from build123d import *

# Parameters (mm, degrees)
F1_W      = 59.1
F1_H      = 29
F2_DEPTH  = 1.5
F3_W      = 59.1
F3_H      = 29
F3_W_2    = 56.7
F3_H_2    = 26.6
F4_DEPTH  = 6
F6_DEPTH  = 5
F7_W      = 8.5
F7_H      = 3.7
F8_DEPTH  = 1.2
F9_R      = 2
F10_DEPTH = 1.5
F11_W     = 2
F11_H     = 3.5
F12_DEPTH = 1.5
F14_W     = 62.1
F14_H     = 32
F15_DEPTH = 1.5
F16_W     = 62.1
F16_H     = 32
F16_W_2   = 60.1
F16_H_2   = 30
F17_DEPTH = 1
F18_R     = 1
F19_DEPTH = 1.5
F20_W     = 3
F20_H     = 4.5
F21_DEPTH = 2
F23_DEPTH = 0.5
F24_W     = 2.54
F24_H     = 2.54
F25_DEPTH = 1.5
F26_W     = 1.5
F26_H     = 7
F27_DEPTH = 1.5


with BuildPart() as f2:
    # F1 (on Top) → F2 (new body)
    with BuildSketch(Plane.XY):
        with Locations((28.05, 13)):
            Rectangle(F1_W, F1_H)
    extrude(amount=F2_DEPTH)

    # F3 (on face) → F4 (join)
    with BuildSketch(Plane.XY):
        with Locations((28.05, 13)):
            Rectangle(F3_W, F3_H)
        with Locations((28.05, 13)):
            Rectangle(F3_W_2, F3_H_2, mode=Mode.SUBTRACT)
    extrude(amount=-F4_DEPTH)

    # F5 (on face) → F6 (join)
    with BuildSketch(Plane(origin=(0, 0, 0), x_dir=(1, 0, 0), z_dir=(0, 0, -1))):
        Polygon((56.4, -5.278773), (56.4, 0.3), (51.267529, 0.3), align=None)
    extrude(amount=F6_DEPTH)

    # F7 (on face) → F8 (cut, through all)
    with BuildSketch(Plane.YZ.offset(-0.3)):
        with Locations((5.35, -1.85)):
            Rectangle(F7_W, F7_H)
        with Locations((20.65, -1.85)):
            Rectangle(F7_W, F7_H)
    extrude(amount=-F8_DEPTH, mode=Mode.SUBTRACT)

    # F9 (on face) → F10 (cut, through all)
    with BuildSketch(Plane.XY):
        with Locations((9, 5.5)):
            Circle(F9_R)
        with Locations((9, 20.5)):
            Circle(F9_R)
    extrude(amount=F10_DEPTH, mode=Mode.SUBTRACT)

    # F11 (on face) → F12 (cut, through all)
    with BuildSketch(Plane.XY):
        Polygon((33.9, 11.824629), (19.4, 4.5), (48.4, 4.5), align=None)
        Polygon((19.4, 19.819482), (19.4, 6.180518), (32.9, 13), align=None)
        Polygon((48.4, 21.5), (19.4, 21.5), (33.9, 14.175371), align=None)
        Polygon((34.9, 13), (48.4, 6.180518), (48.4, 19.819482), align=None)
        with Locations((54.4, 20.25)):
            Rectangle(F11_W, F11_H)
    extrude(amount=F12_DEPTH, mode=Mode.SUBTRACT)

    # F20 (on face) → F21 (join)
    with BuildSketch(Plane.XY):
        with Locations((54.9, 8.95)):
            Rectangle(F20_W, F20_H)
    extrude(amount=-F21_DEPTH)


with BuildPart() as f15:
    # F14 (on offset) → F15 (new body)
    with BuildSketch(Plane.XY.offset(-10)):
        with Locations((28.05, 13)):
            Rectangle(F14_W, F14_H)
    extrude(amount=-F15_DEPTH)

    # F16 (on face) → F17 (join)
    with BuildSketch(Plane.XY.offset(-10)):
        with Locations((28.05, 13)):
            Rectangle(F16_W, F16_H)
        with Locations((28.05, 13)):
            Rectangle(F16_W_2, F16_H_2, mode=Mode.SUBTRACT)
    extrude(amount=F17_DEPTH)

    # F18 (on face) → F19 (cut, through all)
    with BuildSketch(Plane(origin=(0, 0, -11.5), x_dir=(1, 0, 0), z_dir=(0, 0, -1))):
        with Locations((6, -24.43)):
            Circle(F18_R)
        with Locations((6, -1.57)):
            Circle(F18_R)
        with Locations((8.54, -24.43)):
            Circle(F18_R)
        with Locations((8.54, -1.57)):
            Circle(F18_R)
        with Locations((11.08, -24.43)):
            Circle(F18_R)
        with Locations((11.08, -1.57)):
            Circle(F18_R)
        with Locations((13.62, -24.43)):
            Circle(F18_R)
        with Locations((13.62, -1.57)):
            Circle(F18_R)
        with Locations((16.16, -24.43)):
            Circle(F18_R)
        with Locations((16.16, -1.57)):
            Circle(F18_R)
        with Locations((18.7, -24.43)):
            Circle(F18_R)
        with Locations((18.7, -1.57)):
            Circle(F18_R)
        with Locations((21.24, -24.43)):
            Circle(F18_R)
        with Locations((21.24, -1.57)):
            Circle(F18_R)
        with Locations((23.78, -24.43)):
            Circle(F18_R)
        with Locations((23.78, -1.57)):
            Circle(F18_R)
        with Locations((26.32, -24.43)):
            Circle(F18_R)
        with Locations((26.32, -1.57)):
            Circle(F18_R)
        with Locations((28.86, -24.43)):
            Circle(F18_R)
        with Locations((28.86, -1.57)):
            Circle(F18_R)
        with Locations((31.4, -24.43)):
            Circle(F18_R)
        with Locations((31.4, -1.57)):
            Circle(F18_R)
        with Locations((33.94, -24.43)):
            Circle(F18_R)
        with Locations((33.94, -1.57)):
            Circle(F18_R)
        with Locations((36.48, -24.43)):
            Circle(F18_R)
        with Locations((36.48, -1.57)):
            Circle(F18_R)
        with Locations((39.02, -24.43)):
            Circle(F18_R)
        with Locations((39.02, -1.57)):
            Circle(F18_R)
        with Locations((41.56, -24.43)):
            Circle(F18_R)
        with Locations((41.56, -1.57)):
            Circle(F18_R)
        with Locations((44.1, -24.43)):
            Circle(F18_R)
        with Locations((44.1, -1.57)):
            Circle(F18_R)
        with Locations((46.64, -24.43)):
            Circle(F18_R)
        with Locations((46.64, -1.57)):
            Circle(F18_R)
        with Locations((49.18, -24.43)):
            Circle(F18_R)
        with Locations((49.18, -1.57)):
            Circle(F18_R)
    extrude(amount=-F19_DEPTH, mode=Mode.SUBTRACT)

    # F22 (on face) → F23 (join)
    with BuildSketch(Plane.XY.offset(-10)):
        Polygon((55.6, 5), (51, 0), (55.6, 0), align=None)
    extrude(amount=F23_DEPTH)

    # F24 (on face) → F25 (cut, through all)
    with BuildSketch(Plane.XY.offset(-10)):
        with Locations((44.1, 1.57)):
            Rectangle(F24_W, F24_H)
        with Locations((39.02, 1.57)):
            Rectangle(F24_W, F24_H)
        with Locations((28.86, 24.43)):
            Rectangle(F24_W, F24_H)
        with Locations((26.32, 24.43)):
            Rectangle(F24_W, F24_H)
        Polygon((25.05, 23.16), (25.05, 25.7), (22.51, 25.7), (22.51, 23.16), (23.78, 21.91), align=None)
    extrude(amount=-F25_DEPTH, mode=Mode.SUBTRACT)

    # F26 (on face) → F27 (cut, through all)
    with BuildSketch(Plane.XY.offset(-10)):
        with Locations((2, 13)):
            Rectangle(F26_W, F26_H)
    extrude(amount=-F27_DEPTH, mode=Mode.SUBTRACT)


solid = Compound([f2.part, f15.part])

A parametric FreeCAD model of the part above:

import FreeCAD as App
import Part
import Sketcher
from FreeCAD import Vector

doc = App.newDocument("Part")
body = doc.addObject("PartDesign::Body", "Body")

# Sketch on XY plane
sketch1 = body.newObject("Sketcher::SketchObject", "Sketch")
sketch1.AttachmentSupport = (doc.getObject("XY_Plane"), [""])
sketch1.MapMode = "FlatFace"
sketch1.addGeometry(Part.LineSegment(Vector(-1.5, 27.5, 0), Vector(-1.5, -1.5, 0)), False)
sketch1.addGeometry(Part.LineSegment(Vector(-1.5, -1.5, 0), Vector(57.6, -1.5, 0)), False)
sketch1.addGeometry(Part.LineSegment(Vector(57.6, -1.5, 0), Vector(57.6, 27.5, 0)), False)
sketch1.addGeometry(Part.LineSegment(Vector(57.6, 27.5, 0), Vector(-1.5, 27.5, 0)), False)
sketch1.addConstraint(Sketcher.Constraint("Coincident", 0, 2, 1, 1))
sketch1.addConstraint(Sketcher.Constraint("Coincident", 1, 2, 2, 1))
sketch1.addConstraint(Sketcher.Constraint("Coincident", 2, 2, 3, 1))
sketch1.addConstraint(Sketcher.Constraint("Coincident", 3, 2, 0, 1))
sketch1.addConstraint(Sketcher.Constraint("Vertical", 0))
sketch1.addConstraint(Sketcher.Constraint("Horizontal", 1))
sketch1.addConstraint(Sketcher.Constraint("Vertical", 2))
sketch1.addConstraint(Sketcher.Constraint("Horizontal", 3))
sketch1.addConstraint(Sketcher.Constraint("DistanceY", 0, 2, 0, 1, 29.0))
sketch1.addConstraint(Sketcher.Constraint("DistanceX", 1, 1, 1, 2, 59.1))
sketch1.addConstraint(Sketcher.Constraint("DistanceX", 0, 2, -1, 1, 1.5))
sketch1.addConstraint(Sketcher.Constraint("DistanceY", 0, 2, -1, 1, 1.5))
pad1 = body.newObject("PartDesign::Pad", "Pad")
pad1.Profile = sketch1
pad1.Length = 1.5

# Sketch on XY plane
sketch2 = body.newObject("Sketcher::SketchObject", "Sketch001")
sketch2.AttachmentSupport = (doc.getObject("XY_Plane"), [""])
sketch2.MapMode = "FlatFace"
sketch2.addGeometry(Part.LineSegment(Vector(-1.5, 27.5, 0), Vector(-1.5, -1.5, 0)), False)
sketch2.addGeometry(Part.LineSegment(Vector(-1.5, -1.5, 0), Vector(57.6, -1.5, 0)), False)
sketch2.addGeometry(Part.LineSegment(Vector(57.6, -1.5, 0), Vector(57.6, 27.5, 0)), False)
sketch2.addGeometry(Part.LineSegment(Vector(57.6, 27.5, 0), Vector(-1.5, 27.5, 0)), False)
sketch2.addGeometry(Part.LineSegment(Vector(56.4, -0.3, 0), Vector(-0.3, -0.3, 0)), False)
sketch2.addGeometry(Part.LineSegment(Vector(-0.3, -0.3, 0), Vector(-0.3, 26.3, 0)), False)
sketch2.addGeometry(Part.LineSegment(Vector(-0.3, 26.3, 0), Vector(56.4, 26.3, 0)), False)
sketch2.addGeometry(Part.LineSegment(Vector(56.4, 26.3, 0), Vector(56.4, -0.3, 0)), False)
sketch2.addConstraint(Sketcher.Constraint("Coincident", 0, 2, 1, 1))
sketch2.addConstraint(Sketcher.Constraint("Coincident", 1, 2, 2, 1))
sketch2.addConstraint(Sketcher.Constraint("Coincident", 2, 2, 3, 1))
sketch2.addConstraint(Sketcher.Constraint("Coincident", 3, 2, 0, 1))
sketch2.addConstraint(Sketcher.Constraint("Coincident", 4, 2, 5, 1))
sketch2.addConstraint(Sketcher.Constraint("Coincident", 5, 2, 6, 1))
sketch2.addConstraint(Sketcher.Constraint("Coincident", 6, 2, 7, 1))
sketch2.addConstraint(Sketcher.Constraint("Coincident", 7, 2, 4, 1))
sketch2.addConstraint(Sketcher.Constraint("Vertical", 0))
sketch2.addConstraint(Sketcher.Constraint("Horizontal", 1))
sketch2.addConstraint(Sketcher.Constraint("Vertical", 2))
sketch2.addConstraint(Sketcher.Constraint("Horizontal", 3))
sketch2.addConstraint(Sketcher.Constraint("Horizontal", 4))
sketch2.addConstraint(Sketcher.Constraint("Vertical", 5))
sketch2.addConstraint(Sketcher.Constraint("Horizontal", 6))
sketch2.addConstraint(Sketcher.Constraint("Vertical", 7))
sketch2.addConstraint(Sketcher.Constraint("DistanceY", 0, 2, 0, 1, 29.0))
sketch2.addConstraint(Sketcher.Constraint("DistanceX", 1, 1, 1, 2, 59.1))
sketch2.addConstraint(Sketcher.Constraint("DistanceX", 4, 2, 4, 1, 56.7))
sketch2.addConstraint(Sketcher.Constraint("DistanceY", 5, 1, 5, 2, 26.6))
sketch2.addConstraint(Sketcher.Constraint("DistanceX", 0, 2, -1, 1, 1.5))
sketch2.addConstraint(Sketcher.Constraint("DistanceY", 0, 2, -1, 1, 1.5))
sketch2.addConstraint(Sketcher.Constraint("DistanceX", 4, 2, -1, 1, 0.3))
sketch2.addConstraint(Sketcher.Constraint("DistanceY", 4, 2, -1, 1, 0.3))
pad2 = body.newObject("PartDesign::Pad", "Pad001")
pad2.Profile = sketch2
pad2.Length = 6
pad2.Reversed = True

# Sketch on XY plane
sketch3 = body.newObject("Sketcher::SketchObject", "Sketch002")
sketch3.AttachmentSupport = (doc.getObject("XY_Plane"), [""])
sketch3.MapMode = "FlatFace"
sketch3.addGeometry(Part.LineSegment(Vector(56.4, 5.278773, 0), Vector(56.4, -0.3, 0)), False)
sketch3.addGeometry(Part.LineSegment(Vector(56.4, -0.3, 0), Vector(51.267529, -0.3, 0)), False)
sketch3.addGeometry(Part.LineSegment(Vector(51.267529, -0.3, 0), Vector(56.4, 5.278773, 0)), False)
sketch3.addConstraint(Sketcher.Constraint("Coincident", 0, 2, 1, 1))
sketch3.addConstraint(Sketcher.Constraint("Coincident", 1, 2, 2, 1))
sketch3.addConstraint(Sketcher.Constraint("Coincident", 2, 2, 0, 1))
sketch3.addConstraint(Sketcher.Constraint("Vertical", 0))
sketch3.addConstraint(Sketcher.Constraint("Horizontal", 1))
sketch3.addConstraint(Sketcher.Constraint("DistanceX", -1, 1, 0, 2, 56.4))
sketch3.addConstraint(Sketcher.Constraint("DistanceY", 0, 2, -1, 1, 0.3))
sketch3.addConstraint(Sketcher.Constraint("DistanceX", 1, 2, 1, 1, 5.132471))
sketch3.addConstraint(Sketcher.Constraint("DistanceY", 0, 2, 0, 1, 5.578773))
pad3 = body.newObject("PartDesign::Pad", "Pad002")
pad3.Profile = sketch3
pad3.Length = 5
pad3.Reversed = True

# Sketch on YZ plane
sketch4 = body.newObject("Sketcher::SketchObject", "Sketch003")
sketch4.AttachmentSupport = (doc.getObject("YZ_Plane"), [""])
sketch4.MapMode = "FlatFace"
sketch4.AttachmentOffset = App.Placement(Vector(0, 0, -0.3), App.Rotation())
sketch4.addGeometry(Part.LineSegment(Vector(1.1, 0, 0), Vector(1.1, -3.7, 0)), False)
sketch4.addGeometry(Part.LineSegment(Vector(1.1, -3.7, 0), Vector(9.6, -3.7, 0)), False)
sketch4.addGeometry(Part.LineSegment(Vector(9.6, -3.7, 0), Vector(9.6, 0, 0)), False)
sketch4.addGeometry(Part.LineSegment(Vector(9.6, 0, 0), Vector(1.1, 0, 0)), False)
sketch4.addGeometry(Part.LineSegment(Vector(16.4, 0, 0), Vector(16.4, -3.7, 0)), False)
sketch4.addGeometry(Part.LineSegment(Vector(16.4, -3.7, 0), Vector(24.9, -3.7, 0)), False)
sketch4.addGeometry(Part.LineSegment(Vector(24.9, -3.7, 0), Vector(24.9, 0, 0)), False)
sketch4.addGeometry(Part.LineSegment(Vector(24.9, 0, 0), Vector(16.4, 0, 0)), False)
sketch4.addConstraint(Sketcher.Constraint("Coincident", 0, 2, 1, 1))
sketch4.addConstraint(Sketcher.Constraint("Coincident", 1, 2, 2, 1))
sketch4.addConstraint(Sketcher.Constraint("Coincident", 2, 2, 3, 1))
sketch4.addConstraint(Sketcher.Constraint("Coincident", 3, 2, 0, 1))
sketch4.addConstraint(Sketcher.Constraint("Coincident", 4, 2, 5, 1))
sketch4.addConstraint(Sketcher.Constraint("Coincident", 5, 2, 6, 1))
sketch4.addConstraint(Sketcher.Constraint("Coincident", 6, 2, 7, 1))
sketch4.addConstraint(Sketcher.Constraint("Coincident", 7, 2, 4, 1))
sketch4.addConstraint(Sketcher.Constraint("Vertical", 0))
sketch4.addConstraint(Sketcher.Constraint("Horizontal", 1))
sketch4.addConstraint(Sketcher.Constraint("Vertical", 2))
sketch4.addConstraint(Sketcher.Constraint("Horizontal", 3))
sketch4.addConstraint(Sketcher.Constraint("Vertical", 4))
sketch4.addConstraint(Sketcher.Constraint("Horizontal", 5))
sketch4.addConstraint(Sketcher.Constraint("Vertical", 6))
sketch4.addConstraint(Sketcher.Constraint("Horizontal", 7))
sketch4.addConstraint(Sketcher.Constraint("PointOnObject", 2, 2, -1))
sketch4.addConstraint(Sketcher.Constraint("PointOnObject", 6, 2, -1))
sketch4.addConstraint(Sketcher.Constraint("Horizontal", 1, 2, 4, 2))
sketch4.addConstraint(Sketcher.Constraint("Equal", 3, 5))
sketch4.addConstraint(Sketcher.Constraint("DistanceX", 1, 1, 1, 2, 8.5))
sketch4.addConstraint(Sketcher.Constraint("DistanceY", 0, 2, 0, 1, 3.7))
sketch4.addConstraint(Sketcher.Constraint("DistanceX", -1, 1, 0, 2, 1.1))
sketch4.addConstraint(Sketcher.Constraint("DistanceX", -1, 1, 4, 2, 16.4))
pocket1 = body.newObject("PartDesign::Pocket", "Pocket")
pocket1.Profile = sketch4
pocket1.Type = "ThroughAll"

# Sketch on XY plane
sketch5 = body.newObject("Sketcher::SketchObject", "Sketch004")
sketch5.AttachmentSupport = (doc.getObject("XY_Plane"), [""])
sketch5.MapMode = "FlatFace"
sketch5.addGeometry(Part.Circle(Vector(9, 5.5, 0), Vector(0, 0, 1), 2), False)
sketch5.addGeometry(Part.Circle(Vector(9, 20.5, 0), Vector(0, 0, 1), 2), False)
sketch5.addConstraint(Sketcher.Constraint("Equal", 0, 1))
sketch5.addConstraint(Sketcher.Constraint("Vertical", 0, 3, 1, 3))
sketch5.addConstraint(Sketcher.Constraint("Diameter", 0, 4.0))
sketch5.addConstraint(Sketcher.Constraint("DistanceX", -1, 1, 0, 3, 9.0))
sketch5.addConstraint(Sketcher.Constraint("DistanceY", 0, 3, 1, 3, 15.0))
sketch5.addConstraint(Sketcher.Constraint("DistanceY", -1, 1, 0, 3, 5.5))
pocket2 = body.newObject("PartDesign::Pocket", "Pocket001")
pocket2.Profile = sketch5
pocket2.Type = "ThroughAll"
pocket2.Reversed = True

# Sketch on XY plane
sketch6 = body.newObject("Sketcher::SketchObject", "Sketch005")
sketch6.AttachmentSupport = (doc.getObject("XY_Plane"), [""])
sketch6.MapMode = "FlatFace"
sketch6.addGeometry(Part.LineSegment(Vector(33.9, 11.824629, 0), Vector(19.4, 4.5, 0)), False)
sketch6.addGeometry(Part.LineSegment(Vector(19.4, 4.5, 0), Vector(48.4, 4.5, 0)), False)
sketch6.addGeometry(Part.LineSegment(Vector(48.4, 4.5, 0), Vector(33.9, 11.824629, 0)), False)
sketch6.addGeometry(Part.LineSegment(Vector(19.4, 19.819482, 0), Vector(19.4, 6.180518, 0)), False)
sketch6.addGeometry(Part.LineSegment(Vector(19.4, 6.180518, 0), Vector(32.9, 13, 0)), False)
sketch6.addGeometry(Part.LineSegment(Vector(32.9, 13, 0), Vector(19.4, 19.819482, 0)), False)
sketch6.addGeometry(Part.LineSegment(Vector(48.4, 21.5, 0), Vector(19.4, 21.5, 0)), False)
sketch6.addGeometry(Part.LineSegment(Vector(19.4, 21.5, 0), Vector(33.9, 14.175371, 0)), False)
sketch6.addGeometry(Part.LineSegment(Vector(33.9, 14.175371, 0), Vector(48.4, 21.5, 0)), False)
sketch6.addGeometry(Part.LineSegment(Vector(34.9, 13, 0), Vector(48.4, 6.180518, 0)), False)
sketch6.addGeometry(Part.LineSegment(Vector(48.4, 6.180518, 0), Vector(48.4, 19.819482, 0)), False)
sketch6.addGeometry(Part.LineSegment(Vector(48.4, 19.819482, 0), Vector(34.9, 13, 0)), False)
sketch6.addGeometry(Part.LineSegment(Vector(53.4, 22, 0), Vector(53.4, 18.5, 0)), False)
sketch6.addGeometry(Part.LineSegment(Vector(53.4, 18.5, 0), Vector(55.4, 18.5, 0)), False)
sketch6.addGeometry(Part.LineSegment(Vector(55.4, 18.5, 0), Vector(55.4, 22, 0)), False)
sketch6.addGeometry(Part.LineSegment(Vector(55.4, 22, 0), Vector(53.4, 22, 0)), False)
sketch6.addConstraint(Sketcher.Constraint("Coincident", 0, 2, 1, 1))
sketch6.addConstraint(Sketcher.Constraint("Coincident", 1, 2, 2, 1))
sketch6.addConstraint(Sketcher.Constraint("Coincident", 2, 2, 0, 1))
sketch6.addConstraint(Sketcher.Constraint("Coincident", 3, 2, 4, 1))
sketch6.addConstraint(Sketcher.Constraint("Coincident", 4, 2, 5, 1))
sketch6.addConstraint(Sketcher.Constraint("Coincident", 5, 2, 3, 1))
sketch6.addConstraint(Sketcher.Constraint("Coincident", 6, 2, 7, 1))
sketch6.addConstraint(Sketcher.Constraint("Coincident", 7, 2, 8, 1))
sketch6.addConstraint(Sketcher.Constraint("Coincident", 8, 2, 6, 1))
sketch6.addConstraint(Sketcher.Constraint("Coincident", 9, 2, 10, 1))
sketch6.addConstraint(Sketcher.Constraint("Coincident", 10, 2, 11, 1))
sketch6.addConstraint(Sketcher.Constraint("Coincident", 11, 2, 9, 1))
sketch6.addConstraint(Sketcher.Constraint("Coincident", 12, 2, 13, 1))
sketch6.addConstraint(Sketcher.Constraint("Coincident", 13, 2, 14, 1))
sketch6.addConstraint(Sketcher.Constraint("Coincident", 14, 2, 15, 1))
sketch6.addConstraint(Sketcher.Constraint("Coincident", 15, 2, 12, 1))
sketch6.addConstraint(Sketcher.Constraint("Horizontal", 1))
sketch6.addConstraint(Sketcher.Constraint("Vertical", 3))
sketch6.addConstraint(Sketcher.Constraint("Horizontal", 6))
sketch6.addConstraint(Sketcher.Constraint("Vertical", 10))
sketch6.addConstraint(Sketcher.Constraint("Vertical", 12))
sketch6.addConstraint(Sketcher.Constraint("Horizontal", 13))
sketch6.addConstraint(Sketcher.Constraint("Vertical", 14))
sketch6.addConstraint(Sketcher.Constraint("Horizontal", 15))
sketch6.addConstraint(Sketcher.Constraint("Parallel", 0, 4))
sketch6.addConstraint(Sketcher.Constraint("Parallel", 2, 5))
sketch6.addConstraint(Sketcher.Constraint("Parallel", 5, 7))
sketch6.addConstraint(Sketcher.Constraint("Parallel", 4, 8))
sketch6.addConstraint(Sketcher.Constraint("Parallel", 7, 9))
sketch6.addConstraint(Sketcher.Constraint("Parallel", 8, 11))
sketch6.addConstraint(Sketcher.Constraint("Horizontal", 3, 2, 9, 2))
sketch6.addConstraint(Sketcher.Constraint("Horizontal", 5, 2, 10, 2))
sketch6.addConstraint(Sketcher.Constraint("Horizontal", 4, 2, 11, 2))
sketch6.addConstraint(Sketcher.Constraint("Vertical", 0, 2, 3, 2))
sketch6.addConstraint(Sketcher.Constraint("Vertical", 5, 2, 6, 2))
sketch6.addConstraint(Sketcher.Constraint("Vertical", 2, 2, 7, 2))
sketch6.addConstraint(Sketcher.Constraint("Vertical", 8, 2, 9, 2))
sketch6.addConstraint(Sketcher.Constraint("DistanceX", 1, 1, 1, 2, 29.0))
sketch6.addConstraint(Sketcher.Constraint("DistanceX", 13, 1, 13, 2, 2.0))
sketch6.addConstraint(Sketcher.Constraint("DistanceY", 12, 2, 12, 1, 3.5))
sketch6.addConstraint(Sketcher.Constraint("DistanceY", -1, 1, 4, 2, 13.0))
sketch6.addConstraint(Sketcher.Constraint("DistanceY", -1, 1, 14, 2, 22.0))
sketch6.addConstraint(Sketcher.Constraint("DistanceX", 4, 2, 2, 2, 1.0))
sketch6.addConstraint(Sketcher.Constraint("DistanceY", 0, 2, 6, 2, 17.0))
sketch6.addConstraint(Sketcher.Constraint("DistanceX", 10, 2, 12, 2, 5.0))
sketch6.addConstraint(Sketcher.Constraint("DistanceY", 12, 2, 8, 2, 3.0))
sketch6.addConstraint(Sketcher.Constraint("DistanceX", -1, 1, 0, 2, 19.4))
sketch6.addConstraint(Sketcher.Constraint("Distance", 4, 15.12466))
pocket3 = body.newObject("PartDesign::Pocket", "Pocket002")
pocket3.Profile = sketch6
pocket3.Type = "ThroughAll"
pocket3.Reversed = True

# Sketch on XY plane
sketch7 = body.newObject("Sketcher::SketchObject", "Sketch006")
sketch7.AttachmentSupport = (doc.getObject("XY_Plane"), [""])
sketch7.MapMode = "FlatFace"
sketch7.addGeometry(Part.LineSegment(Vector(53.4, 11.2, 0), Vector(53.4, 6.7, 0)), False)
sketch7.addGeometry(Part.LineSegment(Vector(53.4, 6.7, 0), Vector(56.4, 6.7, 0)), False)
sketch7.addGeometry(Part.LineSegment(Vector(56.4, 6.7, 0), Vector(56.4, 11.2, 0)), False)
sketch7.addGeometry(Part.LineSegment(Vector(56.4, 11.2, 0), Vector(53.4, 11.2, 0)), False)
sketch7.addConstraint(Sketcher.Constraint("Coincident", 0, 2, 1, 1))
sketch7.addConstraint(Sketcher.Constraint("Coincident", 1, 2, 2, 1))
sketch7.addConstraint(Sketcher.Constraint("Coincident", 2, 2, 3, 1))
sketch7.addConstraint(Sketcher.Constraint("Coincident", 3, 2, 0, 1))
sketch7.addConstraint(Sketcher.Constraint("Vertical", 0))
sketch7.addConstraint(Sketcher.Constraint("Horizontal", 1))
sketch7.addConstraint(Sketcher.Constraint("Vertical", 2))
sketch7.addConstraint(Sketcher.Constraint("Horizontal", 3))
sketch7.addConstraint(Sketcher.Constraint("DistanceX", 1, 1, 1, 2, 3.0))
sketch7.addConstraint(Sketcher.Constraint("DistanceY", 0, 2, 0, 1, 4.5))
sketch7.addConstraint(Sketcher.Constraint("DistanceX", -1, 1, 0, 2, 53.4))
sketch7.addConstraint(Sketcher.Constraint("DistanceY", -1, 1, 0, 2, 6.7))
pad4 = body.newObject("PartDesign::Pad", "Pad003")
pad4.Profile = sketch7
pad4.Length = 2
pad4.Reversed = True
body2 = doc.addObject("PartDesign::Body", "Body001")

# Sketch on XY plane
sketch8 = body2.newObject("Sketcher::SketchObject", "Sketch007")
sketch8.AttachmentSupport = (doc.getObject("XY_Plane001"), [""])
sketch8.MapMode = "FlatFace"
sketch8.AttachmentOffset = App.Placement(Vector(0, 0, -10), App.Rotation())
sketch8.addGeometry(Part.LineSegment(Vector(-3, 29, 0), Vector(-3, -3, 0)), False)
sketch8.addGeometry(Part.LineSegment(Vector(-3, -3, 0), Vector(59.1, -3, 0)), False)
sketch8.addGeometry(Part.LineSegment(Vector(59.1, -3, 0), Vector(59.1, 29, 0)), False)
sketch8.addGeometry(Part.LineSegment(Vector(59.1, 29, 0), Vector(-3, 29, 0)), False)
sketch8.addConstraint(Sketcher.Constraint("Coincident", 0, 2, 1, 1))
sketch8.addConstraint(Sketcher.Constraint("Coincident", 1, 2, 2, 1))
sketch8.addConstraint(Sketcher.Constraint("Coincident", 2, 2, 3, 1))
sketch8.addConstraint(Sketcher.Constraint("Coincident", 3, 2, 0, 1))
sketch8.addConstraint(Sketcher.Constraint("Vertical", 0))
sketch8.addConstraint(Sketcher.Constraint("Horizontal", 1))
sketch8.addConstraint(Sketcher.Constraint("Vertical", 2))
sketch8.addConstraint(Sketcher.Constraint("Horizontal", 3))
sketch8.addConstraint(Sketcher.Constraint("DistanceY", 0, 2, 0, 1, 32.0))
sketch8.addConstraint(Sketcher.Constraint("DistanceX", 1, 1, 1, 2, 62.1))
sketch8.addConstraint(Sketcher.Constraint("DistanceX", 0, 2, -1, 1, 3.0))
sketch8.addConstraint(Sketcher.Constraint("DistanceY", 0, 2, -1, 1, 3.0))
pad5 = body2.newObject("PartDesign::Pad", "Pad004")
pad5.Profile = sketch8
pad5.Length = 1.5
pad5.Reversed = True

# Sketch on XY plane
sketch9 = body2.newObject("Sketcher::SketchObject", "Sketch008")
sketch9.AttachmentSupport = (doc.getObject("XY_Plane001"), [""])
sketch9.MapMode = "FlatFace"
sketch9.AttachmentOffset = App.Placement(Vector(0, 0, -10), App.Rotation())
sketch9.addGeometry(Part.LineSegment(Vector(-3, 29, 0), Vector(-3, -3, 0)), False)
sketch9.addGeometry(Part.LineSegment(Vector(-3, -3, 0), Vector(59.1, -3, 0)), False)
sketch9.addGeometry(Part.LineSegment(Vector(59.1, -3, 0), Vector(59.1, 29, 0)), False)
sketch9.addGeometry(Part.LineSegment(Vector(59.1, 29, 0), Vector(-3, 29, 0)), False)
sketch9.addGeometry(Part.LineSegment(Vector(58.1, -2, 0), Vector(-2, -2, 0)), False)
sketch9.addGeometry(Part.LineSegment(Vector(-2, -2, 0), Vector(-2, 28, 0)), False)
sketch9.addGeometry(Part.LineSegment(Vector(-2, 28, 0), Vector(58.1, 28, 0)), False)
sketch9.addGeometry(Part.LineSegment(Vector(58.1, 28, 0), Vector(58.1, -2, 0)), False)
sketch9.addConstraint(Sketcher.Constraint("Coincident", 0, 2, 1, 1))
sketch9.addConstraint(Sketcher.Constraint("Coincident", 1, 2, 2, 1))
sketch9.addConstraint(Sketcher.Constraint("Coincident", 2, 2, 3, 1))
sketch9.addConstraint(Sketcher.Constraint("Coincident", 3, 2, 0, 1))
sketch9.addConstraint(Sketcher.Constraint("Coincident", 4, 2, 5, 1))
sketch9.addConstraint(Sketcher.Constraint("Coincident", 5, 2, 6, 1))
sketch9.addConstraint(Sketcher.Constraint("Coincident", 6, 2, 7, 1))
sketch9.addConstraint(Sketcher.Constraint("Coincident", 7, 2, 4, 1))
sketch9.addConstraint(Sketcher.Constraint("Vertical", 0))
sketch9.addConstraint(Sketcher.Constraint("Horizontal", 1))
sketch9.addConstraint(Sketcher.Constraint("Vertical", 2))
sketch9.addConstraint(Sketcher.Constraint("Horizontal", 3))
sketch9.addConstraint(Sketcher.Constraint("Horizontal", 4))
sketch9.addConstraint(Sketcher.Constraint("Vertical", 5))
sketch9.addConstraint(Sketcher.Constraint("Horizontal", 6))
sketch9.addConstraint(Sketcher.Constraint("Vertical", 7))
sketch9.addConstraint(Sketcher.Constraint("DistanceY", 0, 2, 0, 1, 32.0))
sketch9.addConstraint(Sketcher.Constraint("DistanceY", 5, 1, 5, 2, 30.0))
sketch9.addConstraint(Sketcher.Constraint("DistanceX", 1, 1, 1, 2, 62.1))
sketch9.addConstraint(Sketcher.Constraint("DistanceX", 4, 2, 4, 1, 60.1))
sketch9.addConstraint(Sketcher.Constraint("DistanceX", 0, 2, -1, 1, 3.0))
sketch9.addConstraint(Sketcher.Constraint("DistanceY", 0, 2, -1, 1, 3.0))
sketch9.addConstraint(Sketcher.Constraint("DistanceX", 4, 2, -1, 1, 2.0))
sketch9.addConstraint(Sketcher.Constraint("DistanceY", 4, 2, -1, 1, 2.0))
pad6 = body2.newObject("PartDesign::Pad", "Pad005")
pad6.Profile = sketch9
pad6.Length = 1

# Sketch on XY plane
sketch10 = body2.newObject("Sketcher::SketchObject", "Sketch009")
sketch10.AttachmentSupport = (doc.getObject("XY_Plane001"), [""])
sketch10.MapMode = "FlatFace"
sketch10.AttachmentOffset = App.Placement(Vector(0, 0, -11.5), App.Rotation())
sketch10.addGeometry(Part.Circle(Vector(6, 24.43, 0), Vector(0, 0, 1), 1), False)
sketch10.addGeometry(Part.Circle(Vector(6, 1.57, 0), Vector(0, 0, 1), 1), False)
sketch10.addGeometry(Part.Circle(Vector(8.54, 24.43, 0), Vector(0, 0, 1), 1), False)
sketch10.addGeometry(Part.Circle(Vector(8.54, 1.57, 0), Vector(0, 0, 1), 1), False)
sketch10.addGeometry(Part.Circle(Vector(11.08, 24.43, 0), Vector(0, 0, 1), 1), False)
sketch10.addGeometry(Part.Circle(Vector(11.08, 1.57, 0), Vector(0, 0, 1), 1), False)
sketch10.addGeometry(Part.Circle(Vector(13.62, 24.43, 0), Vector(0, 0, 1), 1), False)
sketch10.addGeometry(Part.Circle(Vector(13.62, 1.57, 0), Vector(0, 0, 1), 1), False)
sketch10.addGeometry(Part.Circle(Vector(16.16, 24.43, 0), Vector(0, 0, 1), 1), False)
sketch10.addGeometry(Part.Circle(Vector(16.16, 1.57, 0), Vector(0, 0, 1), 1), False)
sketch10.addGeometry(Part.Circle(Vector(18.7, 24.43, 0), Vector(0, 0, 1), 1), False)
sketch10.addGeometry(Part.Circle(Vector(18.7, 1.57, 0), Vector(0, 0, 1), 1), False)
sketch10.addGeometry(Part.Circle(Vector(21.24, 24.43, 0), Vector(0, 0, 1), 1), False)
sketch10.addGeometry(Part.Circle(Vector(21.24, 1.57, 0), Vector(0, 0, 1), 1), False)
sketch10.addGeometry(Part.Circle(Vector(23.78, 24.43, 0), Vector(0, 0, 1), 1), False)
sketch10.addGeometry(Part.Circle(Vector(23.78, 1.57, 0), Vector(0, 0, 1), 1), False)
sketch10.addGeometry(Part.Circle(Vector(26.32, 24.43, 0), Vector(0, 0, 1), 1), False)
sketch10.addGeometry(Part.Circle(Vector(26.32, 1.57, 0), Vector(0, 0, 1), 1), False)
sketch10.addGeometry(Part.Circle(Vector(28.86, 24.43, 0), Vector(0, 0, 1), 1), False)
sketch10.addGeometry(Part.Circle(Vector(28.86, 1.57, 0), Vector(0, 0, 1), 1), False)
sketch10.addGeometry(Part.Circle(Vector(31.4, 24.43, 0), Vector(0, 0, 1), 1), False)
sketch10.addGeometry(Part.Circle(Vector(31.4, 1.57, 0), Vector(0, 0, 1), 1), False)
sketch10.addGeometry(Part.Circle(Vector(33.94, 24.43, 0), Vector(0, 0, 1), 1), False)
sketch10.addGeometry(Part.Circle(Vector(33.94, 1.57, 0), Vector(0, 0, 1), 1), False)
sketch10.addGeometry(Part.Circle(Vector(36.48, 24.43, 0), Vector(0, 0, 1), 1), False)
sketch10.addGeometry(Part.Circle(Vector(36.48, 1.57, 0), Vector(0, 0, 1), 1), False)
sketch10.addGeometry(Part.Circle(Vector(39.02, 24.43, 0), Vector(0, 0, 1), 1), False)
sketch10.addGeometry(Part.Circle(Vector(39.02, 1.57, 0), Vector(0, 0, 1), 1), False)
sketch10.addGeometry(Part.Circle(Vector(41.56, 24.43, 0), Vector(0, 0, 1), 1), False)
sketch10.addGeometry(Part.Circle(Vector(41.56, 1.57, 0), Vector(0, 0, 1), 1), False)
sketch10.addGeometry(Part.Circle(Vector(44.1, 24.43, 0), Vector(0, 0, 1), 1), False)
sketch10.addGeometry(Part.Circle(Vector(44.1, 1.57, 0), Vector(0, 0, 1), 1), False)
sketch10.addGeometry(Part.Circle(Vector(46.64, 24.43, 0), Vector(0, 0, 1), 1), False)
sketch10.addGeometry(Part.Circle(Vector(46.64, 1.57, 0), Vector(0, 0, 1), 1), False)
sketch10.addGeometry(Part.Circle(Vector(49.18, 24.43, 0), Vector(0, 0, 1), 1), False)
sketch10.addGeometry(Part.Circle(Vector(49.18, 1.57, 0), Vector(0, 0, 1), 1), False)
sketch10.addConstraint(Sketcher.Constraint("Equal", 0, 1))
sketch10.addConstraint(Sketcher.Constraint("Equal", 1, 2))
sketch10.addConstraint(Sketcher.Constraint("Equal", 2, 3))
sketch10.addConstraint(Sketcher.Constraint("Equal", 3, 4))
sketch10.addConstraint(Sketcher.Constraint("Equal", 4, 5))
sketch10.addConstraint(Sketcher.Constraint("Equal", 5, 6))
sketch10.addConstraint(Sketcher.Constraint("Equal", 6, 7))
sketch10.addConstraint(Sketcher.Constraint("Equal", 7, 8))
sketch10.addConstraint(Sketcher.Constraint("Equal", 8, 9))
sketch10.addConstraint(Sketcher.Constraint("Equal", 9, 10))
sketch10.addConstraint(Sketcher.Constraint("Equal", 10, 11))
sketch10.addConstraint(Sketcher.Constraint("Equal", 11, 12))
sketch10.addConstraint(Sketcher.Constraint("Equal", 12, 13))
sketch10.addConstraint(Sketcher.Constraint("Equal", 13, 14))
sketch10.addConstraint(Sketcher.Constraint("Equal", 14, 15))
sketch10.addConstraint(Sketcher.Constraint("Equal", 15, 16))
sketch10.addConstraint(Sketcher.Constraint("Equal", 16, 17))
sketch10.addConstraint(Sketcher.Constraint("Equal", 17, 18))
sketch10.addConstraint(Sketcher.Constraint("Equal", 18, 19))
sketch10.addConstraint(Sketcher.Constraint("Equal", 19, 20))
sketch10.addConstraint(Sketcher.Constraint("Equal", 20, 21))
sketch10.addConstraint(Sketcher.Constraint("Equal", 21, 22))
sketch10.addConstraint(Sketcher.Constraint("Equal", 22, 23))
sketch10.addConstraint(Sketcher.Constraint("Equal", 23, 24))
sketch10.addConstraint(Sketcher.Constraint("Equal", 24, 25))
sketch10.addConstraint(Sketcher.Constraint("Equal", 25, 26))
sketch10.addConstraint(Sketcher.Constraint("Equal", 26, 27))
sketch10.addConstraint(Sketcher.Constraint("Equal", 27, 28))
sketch10.addConstraint(Sketcher.Constraint("Equal", 28, 29))
sketch10.addConstraint(Sketcher.Constraint("Equal", 29, 30))
sketch10.addConstraint(Sketcher.Constraint("Equal", 30, 31))
sketch10.addConstraint(Sketcher.Constraint("Equal", 31, 32))
sketch10.addConstraint(Sketcher.Constraint("Equal", 32, 33))
sketch10.addConstraint(Sketcher.Constraint("Equal", 33, 34))
sketch10.addConstraint(Sketcher.Constraint("Equal", 34, 35))
sketch10.addConstraint(Sketcher.Constraint("Horizontal", 0, 3, 2, 3))
sketch10.addConstraint(Sketcher.Constraint("Horizontal", 1, 3, 3, 3))
sketch10.addConstraint(Sketcher.Constraint("Horizontal", 2, 3, 4, 3))
sketch10.addConstraint(Sketcher.Constraint("Horizontal", 3, 3, 5, 3))
sketch10.addConstraint(Sketcher.Constraint("Horizontal", 4, 3, 6, 3))
sketch10.addConstraint(Sketcher.Constraint("Horizontal", 5, 3, 7, 3))
sketch10.addConstraint(Sketcher.Constraint("Horizontal", 6, 3, 8, 3))
sketch10.addConstraint(Sketcher.Constraint("Horizontal", 7, 3, 9, 3))
sketch10.addConstraint(Sketcher.Constraint("Horizontal", 8, 3, 10, 3))
sketch10.addConstraint(Sketcher.Constraint("Horizontal", 9, 3, 11, 3))
sketch10.addConstraint(Sketcher.Constraint("Horizontal", 10, 3, 12, 3))
sketch10.addConstraint(Sketcher.Constraint("Horizontal", 11, 3, 13, 3))
sketch10.addConstraint(Sketcher.Constraint("Horizontal", 12, 3, 14, 3))
sketch10.addConstraint(Sketcher.Constraint("Horizontal", 13, 3, 15, 3))
sketch10.addConstraint(Sketcher.Constraint("Horizontal", 14, 3, 16, 3))
sketch10.addConstraint(Sketcher.Constraint("Horizontal", 15, 3, 17, 3))
sketch10.addConstraint(Sketcher.Constraint("Horizontal", 16, 3, 18, 3))
sketch10.addConstraint(Sketcher.Constraint("Horizontal", 17, 3, 19, 3))
sketch10.addConstraint(Sketcher.Constraint("Horizontal", 18, 3, 20, 3))
sketch10.addConstraint(Sketcher.Constraint("Horizontal", 19, 3, 21, 3))
sketch10.addConstraint(Sketcher.Constraint("Horizontal", 20, 3, 22, 3))
sketch10.addConstraint(Sketcher.Constraint("Horizontal", 21, 3, 23, 3))
sketch10.addConstraint(Sketcher.Constraint("Horizontal", 22, 3, 24, 3))
sketch10.addConstraint(Sketcher.Constraint("Horizontal", 23, 3, 25, 3))
sketch10.addConstraint(Sketcher.Constraint("Horizontal", 24, 3, 26, 3))
sketch10.addConstraint(Sketcher.Constraint("Horizontal", 25, 3, 27, 3))
sketch10.addConstraint(Sketcher.Constraint("Horizontal", 26, 3, 28, 3))
sketch10.addConstraint(Sketcher.Constraint("Horizontal", 27, 3, 29, 3))
sketch10.addConstraint(Sketcher.Constraint("Horizontal", 28, 3, 30, 3))
sketch10.addConstraint(Sketcher.Constraint("Horizontal", 29, 3, 31, 3))
sketch10.addConstraint(Sketcher.Constraint("Horizontal", 30, 3, 32, 3))
sketch10.addConstraint(Sketcher.Constraint("Horizontal", 31, 3, 33, 3))
sketch10.addConstraint(Sketcher.Constraint("Horizontal", 32, 3, 34, 3))
sketch10.addConstraint(Sketcher.Constraint("Horizontal", 33, 3, 35, 3))
sketch10.addConstraint(Sketcher.Constraint("Vertical", 0, 3, 1, 3))
sketch10.addConstraint(Sketcher.Constraint("Vertical", 2, 3, 3, 3))
sketch10.addConstraint(Sketcher.Constraint("Vertical", 4, 3, 5, 3))
sketch10.addConstraint(Sketcher.Constraint("Vertical", 6, 3, 7, 3))
sketch10.addConstraint(Sketcher.Constraint("Vertical", 8, 3, 9, 3))
sketch10.addConstraint(Sketcher.Constraint("Vertical", 10, 3, 11, 3))
sketch10.addConstraint(Sketcher.Constraint("Vertical", 12, 3, 13, 3))
sketch10.addConstraint(Sketcher.Constraint("Vertical", 14, 3, 15, 3))
sketch10.addConstraint(Sketcher.Constraint("Vertical", 16, 3, 17, 3))
sketch10.addConstraint(Sketcher.Constraint("Vertical", 18, 3, 19, 3))
sketch10.addConstraint(Sketcher.Constraint("Vertical", 20, 3, 21, 3))
sketch10.addConstraint(Sketcher.Constraint("Vertical", 22, 3, 23, 3))
sketch10.addConstraint(Sketcher.Constraint("Vertical", 24, 3, 25, 3))
sketch10.addConstraint(Sketcher.Constraint("Vertical", 26, 3, 27, 3))
sketch10.addConstraint(Sketcher.Constraint("Vertical", 28, 3, 29, 3))
sketch10.addConstraint(Sketcher.Constraint("Vertical", 30, 3, 31, 3))
sketch10.addConstraint(Sketcher.Constraint("Vertical", 32, 3, 33, 3))
sketch10.addConstraint(Sketcher.Constraint("Vertical", 34, 3, 35, 3))
sketch10.addConstraint(Sketcher.Constraint("Diameter", 0, 2.0))
sketch10.addConstraint(Sketcher.Constraint("DistanceX", -1, 1, 0, 3, 6.0))
sketch10.addConstraint(Sketcher.Constraint("DistanceX", -1, 1, 10, 3, 18.7))
sketch10.addConstraint(Sketcher.Constraint("DistanceX", -1, 1, 20, 3, 31.4))
sketch10.addConstraint(Sketcher.Constraint("DistanceX", -1, 1, 30, 3, 44.1))
sketch10.addConstraint(Sketcher.Constraint("DistanceX", 2, 3, 12, 3, 12.7))
sketch10.addConstraint(Sketcher.Constraint("DistanceX", 4, 3, 14, 3, 12.7))
sketch10.addConstraint(Sketcher.Constraint("DistanceX", 6, 3, 16, 3, 12.7))
sketch10.addConstraint(Sketcher.Constraint("DistanceX", 8, 3, 18, 3, 12.7))
sketch10.addConstraint(Sketcher.Constraint("DistanceX", 12, 3, 22, 3, 12.7))
sketch10.addConstraint(Sketcher.Constraint("DistanceX", 14, 3, 24, 3, 12.7))
sketch10.addConstraint(Sketcher.Constraint("DistanceX", 16, 3, 26, 3, 12.7))
sketch10.addConstraint(Sketcher.Constraint("DistanceX", 18, 3, 28, 3, 12.7))
sketch10.addConstraint(Sketcher.Constraint("DistanceX", 22, 3, 32, 3, 12.7))
sketch10.addConstraint(Sketcher.Constraint("DistanceX", 24, 3, 34, 3, 12.7))
sketch10.addConstraint(Sketcher.Constraint("DistanceY", -1, 1, 0, 3, 24.43))
sketch10.addConstraint(Sketcher.Constraint("DistanceY", -1, 1, 1, 3, 1.57))
sketch10.addConstraint(Sketcher.Constraint("DistanceX", -1, 1, 2, 3, 8.54))
sketch10.addConstraint(Sketcher.Constraint("DistanceX", -1, 1, 4, 3, 11.08))
sketch10.addConstraint(Sketcher.Constraint("DistanceX", -1, 1, 6, 3, 13.62))
sketch10.addConstraint(Sketcher.Constraint("DistanceX", -1, 1, 8, 3, 16.16))
pocket4 = body2.newObject("PartDesign::Pocket", "Pocket003")
pocket4.Profile = sketch10
pocket4.Type = "ThroughAll"
pocket4.Reversed = True

# Sketch on XY plane
sketch11 = body2.newObject("Sketcher::SketchObject", "Sketch010")
sketch11.AttachmentSupport = (doc.getObject("XY_Plane001"), [""])
sketch11.MapMode = "FlatFace"
sketch11.AttachmentOffset = App.Placement(Vector(0, 0, -10), App.Rotation())
sketch11.addGeometry(Part.LineSegment(Vector(55.6, 5, 0), Vector(51, 0, 0)), False)
sketch11.addGeometry(Part.LineSegment(Vector(51, 0, 0), Vector(55.6, 0, 0)), False)
sketch11.addGeometry(Part.LineSegment(Vector(55.6, 0, 0), Vector(55.6, 5, 0)), False)
sketch11.addConstraint(Sketcher.Constraint("Coincident", 0, 2, 1, 1))
sketch11.addConstraint(Sketcher.Constraint("Coincident", 1, 2, 2, 1))
sketch11.addConstraint(Sketcher.Constraint("Coincident", 2, 2, 0, 1))
sketch11.addConstraint(Sketcher.Constraint("Horizontal", 1))
sketch11.addConstraint(Sketcher.Constraint("Vertical", 2))
sketch11.addConstraint(Sketcher.Constraint("PointOnObject", 0, 2, -1))
sketch11.addConstraint(Sketcher.Constraint("DistanceY", 2, 1, 2, 2, 5.0))
sketch11.addConstraint(Sketcher.Constraint("DistanceX", 1, 1, 1, 2, 4.6))
sketch11.addConstraint(Sketcher.Constraint("DistanceX", -1, 1, 0, 2, 51.0))
pad7 = body2.newObject("PartDesign::Pad", "Pad006")
pad7.Profile = sketch11
pad7.Length = 0.5

# Sketch on XY plane
sketch12 = body2.newObject("Sketcher::SketchObject", "Sketch011")
sketch12.AttachmentSupport = (doc.getObject("XY_Plane001"), [""])
sketch12.MapMode = "FlatFace"
sketch12.AttachmentOffset = App.Placement(Vector(0, 0, -10), App.Rotation())
sketch12.addGeometry(Part.LineSegment(Vector(42.83, 2.84, 0), Vector(42.83, 0.3, 0)), False)
sketch12.addGeometry(Part.LineSegment(Vector(42.83, 0.3, 0), Vector(45.37, 0.3, 0)), False)
sketch12.addGeometry(Part.LineSegment(Vector(45.37, 0.3, 0), Vector(45.37, 2.84, 0)), False)
sketch12.addGeometry(Part.LineSegment(Vector(45.37, 2.84, 0), Vector(42.83, 2.84, 0)), False)
sketch12.addGeometry(Part.LineSegment(Vector(37.75, 2.84, 0), Vector(37.75, 0.3, 0)), False)
sketch12.addGeometry(Part.LineSegment(Vector(37.75, 0.3, 0), Vector(40.29, 0.3, 0)), False)
sketch12.addGeometry(Part.LineSegment(Vector(40.29, 0.3, 0), Vector(40.29, 2.84, 0)), False)
sketch12.addGeometry(Part.LineSegment(Vector(40.29, 2.84, 0), Vector(37.75, 2.84, 0)), False)
sketch12.addGeometry(Part.LineSegment(Vector(30.13, 23.16, 0), Vector(30.13, 25.7, 0)), False)
sketch12.addGeometry(Part.LineSegment(Vector(30.13, 25.7, 0), Vector(22.51, 25.7, 0)), False)
sketch12.addGeometry(Part.LineSegment(Vector(22.51, 25.7, 0), Vector(22.51, 23.16, 0)), False)
sketch12.addGeometry(Part.LineSegment(Vector(22.51, 23.16, 0), Vector(23.78, 21.91, 0)), False)
sketch12.addGeometry(Part.LineSegment(Vector(23.78, 21.91, 0), Vector(25.05, 23.16, 0)), False)
sketch12.addGeometry(Part.LineSegment(Vector(25.05, 23.16, 0), Vector(30.13, 23.16, 0)), False)
sketch12.addConstraint(Sketcher.Constraint("Coincident", 0, 2, 1, 1))
sketch12.addConstraint(Sketcher.Constraint("Coincident", 1, 2, 2, 1))
sketch12.addConstraint(Sketcher.Constraint("Coincident", 2, 2, 3, 1))
sketch12.addConstraint(Sketcher.Constraint("Coincident", 3, 2, 0, 1))
sketch12.addConstraint(Sketcher.Constraint("Coincident", 4, 2, 5, 1))
sketch12.addConstraint(Sketcher.Constraint("Coincident", 5, 2, 6, 1))
sketch12.addConstraint(Sketcher.Constraint("Coincident", 6, 2, 7, 1))
sketch12.addConstraint(Sketcher.Constraint("Coincident", 7, 2, 4, 1))
sketch12.addConstraint(Sketcher.Constraint("Coincident", 8, 2, 9, 1))
sketch12.addConstraint(Sketcher.Constraint("Coincident", 9, 2, 10, 1))
sketch12.addConstraint(Sketcher.Constraint("Coincident", 10, 2, 11, 1))
sketch12.addConstraint(Sketcher.Constraint("Coincident", 11, 2, 12, 1))
sketch12.addConstraint(Sketcher.Constraint("Coincident", 12, 2, 13, 1))
sketch12.addConstraint(Sketcher.Constraint("Coincident", 13, 2, 8, 1))
sketch12.addConstraint(Sketcher.Constraint("Vertical", 0))
sketch12.addConstraint(Sketcher.Constraint("Horizontal", 1))
sketch12.addConstraint(Sketcher.Constraint("Vertical", 2))
sketch12.addConstraint(Sketcher.Constraint("Horizontal", 3))
sketch12.addConstraint(Sketcher.Constraint("Vertical", 4))
sketch12.addConstraint(Sketcher.Constraint("Horizontal", 5))
sketch12.addConstraint(Sketcher.Constraint("Vertical", 6))
sketch12.addConstraint(Sketcher.Constraint("Horizontal", 7))
sketch12.addConstraint(Sketcher.Constraint("Vertical", 8))
sketch12.addConstraint(Sketcher.Constraint("Horizontal", 9))
sketch12.addConstraint(Sketcher.Constraint("Vertical", 10))
sketch12.addConstraint(Sketcher.Constraint("Horizontal", 13))
sketch12.addConstraint(Sketcher.Constraint("Horizontal", 1, 2, 4, 2))
sketch12.addConstraint(Sketcher.Constraint("Horizontal", 3, 2, 6, 2))
sketch12.addConstraint(Sketcher.Constraint("Horizontal", 10, 2, 12, 2))
sketch12.addConstraint(Sketcher.Constraint("Equal", 3, 5))
sketch12.addConstraint(Sketcher.Constraint("Equal", 7, 0))
sketch12.addConstraint(Sketcher.Constraint("Equal", 6, 8))
sketch12.addConstraint(Sketcher.Constraint("Equal", 11, 12))
sketch12.addConstraint(Sketcher.Constraint("DistanceX", 1, 1, 1, 2, 2.54))
sketch12.addConstraint(Sketcher.Constraint("DistanceX", 9, 2, 9, 1, 7.62))
sketch12.addConstraint(Sketcher.Constraint("DistanceX", 13, 1, 13, 2, 5.08))
sketch12.addConstraint(Sketcher.Constraint("DistanceY", -1, 1, 0, 2, 0.3))
sketch12.addConstraint(Sketcher.Constraint("DistanceY", -1, 1, 8, 2, 25.7))
sketch12.addConstraint(Sketcher.Constraint("DistanceX", 8, 2, 3, 2, 12.7))
sketch12.addConstraint(Sketcher.Constraint("DistanceX", 12, 2, 7, 2, 12.7))
sketch12.addConstraint(Sketcher.Constraint("DistanceX", -1, 1, 0, 2, 42.83))
sketch12.addConstraint(Sketcher.Constraint("DistanceY", -1, 1, 11, 2, 21.91))
pocket5 = body2.newObject("PartDesign::Pocket", "Pocket004")
pocket5.Profile = sketch12
pocket5.Type = "ThroughAll"

# Sketch on XY plane
sketch13 = body2.newObject("Sketcher::SketchObject", "Sketch012")
sketch13.AttachmentSupport = (doc.getObject("XY_Plane001"), [""])
sketch13.MapMode = "FlatFace"
sketch13.AttachmentOffset = App.Placement(Vector(0, 0, -10), App.Rotation())
sketch13.addGeometry(Part.LineSegment(Vector(1.25, 16.5, 0), Vector(1.25, 9.5, 0)), False)
sketch13.addGeometry(Part.LineSegment(Vector(1.25, 9.5, 0), Vector(2.75, 9.5, 0)), False)
sketch13.addGeometry(Part.LineSegment(Vector(2.75, 9.5, 0), Vector(2.75, 16.5, 0)), False)
sketch13.addGeometry(Part.LineSegment(Vector(2.75, 16.5, 0), Vector(1.25, 16.5, 0)), False)
sketch13.addConstraint(Sketcher.Constraint("Coincident", 0, 2, 1, 1))
sketch13.addConstraint(Sketcher.Constraint("Coincident", 1, 2, 2, 1))
sketch13.addConstraint(Sketcher.Constraint("Coincident", 2, 2, 3, 1))
sketch13.addConstraint(Sketcher.Constraint("Coincident", 3, 2, 0, 1))
sketch13.addConstraint(Sketcher.Constraint("Vertical", 0))
sketch13.addConstraint(Sketcher.Constraint("Horizontal", 1))
sketch13.addConstraint(Sketcher.Constraint("Vertical", 2))
sketch13.addConstraint(Sketcher.Constraint("Horizontal", 3))
sketch13.addConstraint(Sketcher.Constraint("DistanceY", 0, 2, 0, 1, 7.0))
sketch13.addConstraint(Sketcher.Constraint("DistanceX", 1, 1, 1, 2, 1.5))
sketch13.addConstraint(Sketcher.Constraint("DistanceY", -1, 1, 0, 2, 9.5))
sketch13.addConstraint(Sketcher.Constraint("DistanceX", -1, 1, 0, 2, 1.25))
pocket6 = body2.newObject("PartDesign::Pocket", "Pocket005")
pocket6.Profile = sketch13
pocket6.Type = "ThroughAll"

doc.recompute()
